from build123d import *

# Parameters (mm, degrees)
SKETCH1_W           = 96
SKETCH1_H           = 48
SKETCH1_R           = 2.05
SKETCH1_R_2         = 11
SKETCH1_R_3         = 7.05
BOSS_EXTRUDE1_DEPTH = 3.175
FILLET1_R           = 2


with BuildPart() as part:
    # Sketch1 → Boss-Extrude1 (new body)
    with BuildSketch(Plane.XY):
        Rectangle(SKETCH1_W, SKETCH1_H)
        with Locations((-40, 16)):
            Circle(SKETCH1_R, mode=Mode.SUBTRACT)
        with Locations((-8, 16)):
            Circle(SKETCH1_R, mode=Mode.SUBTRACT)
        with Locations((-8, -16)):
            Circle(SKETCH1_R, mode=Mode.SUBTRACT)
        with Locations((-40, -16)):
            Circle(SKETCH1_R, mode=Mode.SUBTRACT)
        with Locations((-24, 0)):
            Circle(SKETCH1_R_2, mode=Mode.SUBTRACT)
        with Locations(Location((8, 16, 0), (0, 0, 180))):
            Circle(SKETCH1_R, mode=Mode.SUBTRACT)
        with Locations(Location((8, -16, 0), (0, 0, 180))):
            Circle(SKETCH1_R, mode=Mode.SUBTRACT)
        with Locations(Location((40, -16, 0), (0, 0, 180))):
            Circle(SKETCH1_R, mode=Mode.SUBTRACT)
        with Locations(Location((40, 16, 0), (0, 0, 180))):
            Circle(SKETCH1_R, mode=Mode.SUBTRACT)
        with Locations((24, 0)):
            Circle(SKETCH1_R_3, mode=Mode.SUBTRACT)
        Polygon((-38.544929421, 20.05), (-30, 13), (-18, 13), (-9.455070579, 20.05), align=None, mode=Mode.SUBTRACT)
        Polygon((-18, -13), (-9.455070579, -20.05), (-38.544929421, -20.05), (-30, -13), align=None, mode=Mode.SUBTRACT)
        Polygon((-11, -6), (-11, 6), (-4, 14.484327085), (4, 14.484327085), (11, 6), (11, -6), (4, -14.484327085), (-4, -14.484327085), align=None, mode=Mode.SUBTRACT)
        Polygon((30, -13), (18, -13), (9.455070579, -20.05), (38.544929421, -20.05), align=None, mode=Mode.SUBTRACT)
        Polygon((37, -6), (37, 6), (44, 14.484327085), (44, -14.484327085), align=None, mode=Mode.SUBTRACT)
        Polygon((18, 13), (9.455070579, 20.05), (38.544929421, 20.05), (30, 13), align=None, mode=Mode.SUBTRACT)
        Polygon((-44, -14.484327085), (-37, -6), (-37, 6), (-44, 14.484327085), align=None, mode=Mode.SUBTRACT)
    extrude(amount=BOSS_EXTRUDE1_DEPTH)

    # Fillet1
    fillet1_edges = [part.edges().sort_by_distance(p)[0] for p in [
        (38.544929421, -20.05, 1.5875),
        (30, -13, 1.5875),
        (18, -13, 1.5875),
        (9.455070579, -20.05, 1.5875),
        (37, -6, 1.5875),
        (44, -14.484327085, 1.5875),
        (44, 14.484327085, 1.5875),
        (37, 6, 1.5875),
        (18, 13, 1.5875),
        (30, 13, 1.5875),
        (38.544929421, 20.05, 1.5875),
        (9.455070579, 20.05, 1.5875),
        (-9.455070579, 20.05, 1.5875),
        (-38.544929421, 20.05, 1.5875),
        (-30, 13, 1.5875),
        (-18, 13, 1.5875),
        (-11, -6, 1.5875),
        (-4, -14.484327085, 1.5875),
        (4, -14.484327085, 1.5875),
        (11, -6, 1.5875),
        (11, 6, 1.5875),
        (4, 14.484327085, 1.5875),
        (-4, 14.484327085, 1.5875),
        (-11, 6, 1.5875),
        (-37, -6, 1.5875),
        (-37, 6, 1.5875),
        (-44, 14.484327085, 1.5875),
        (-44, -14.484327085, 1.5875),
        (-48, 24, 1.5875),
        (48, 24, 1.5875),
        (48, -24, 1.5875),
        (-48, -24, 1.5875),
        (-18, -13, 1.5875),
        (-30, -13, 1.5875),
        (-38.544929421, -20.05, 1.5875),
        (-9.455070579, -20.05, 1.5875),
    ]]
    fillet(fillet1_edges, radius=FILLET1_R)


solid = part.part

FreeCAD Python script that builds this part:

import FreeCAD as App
import Part
import Sketcher
Q = App.Units.Quantity


def edges_at(feature, points):
    """Names of the edges that pass closest to the given points."""
    edges = feature.Shape.Edges
    near = lambda p: min(range(len(edges)), key=lambda i: edges[i].distToShape(Part.Vertex(*p))[0])
    return sorted({f"Edge{near(p) + 1}" for p in points})


def add_polygon(sketch, points):
    """Adds a closed chain of lines whose ends are joined by coincident constraints."""
    first, n = sketch.GeometryCount, len(points)
    for a, b in zip(points, points[1:] + points[:1]):
        sketch.addGeometry(Part.LineSegment(App.Vector(*a, 0), App.Vector(*b, 0)), False)
    for i in range(n):
        sketch.addConstraint(Sketcher.Constraint("Coincident", first + i, 2, first + (i + 1) % n, 1))

doc = App.newDocument("Part")
params = doc.addObject("Spreadsheet::Sheet", "Params")
for row, (alias, value) in enumerate([
    ("sketch1_diameter", "22 mm"),
    ("sketch1_diameter2", "4.1 mm"),
    ("sketch1_diameter3", "14.1 mm"),
    ("sketch1_width", "96 mm"),
    ("sketch1_width2", "12 mm"),
    ("pad1_length", "3.175 mm"),
    ("fillet_radius", "2 mm"),
], start=1):
    params.set(f"A{row}", alias)
    params.set(f"B{row}", "=" + value)
    params.setAlias(f"B{row}", alias)

body = doc.addObject("PartDesign::Body", "Body")

# Sketch on XY plane
sketch1 = body.newObject("Sketcher::SketchObject", "Sketch")
sketch1.AttachmentSupport = (doc.getObject("XY_Plane"), [""])
sketch1.MapMode = "FlatFace"
add_polygon(sketch1, [(-48, 24), (-48, -24), (48, -24), (48, 24)])  # lines 0-3
sketch1.addGeometry(Part.Circle(App.Vector(-40, -16, 0), App.Vector(0, 0, 1), 2), False)  # 4
add_polygon(sketch1, [(-30, -13), (-18, -13), (-9.5, -20.1), (-38.5, -20.1)])  # lines 5-8
sketch1.addGeometry(Part.Circle(App.Vector(-8, -16, 0), App.Vector(0, 0, 1), 2), False)  # 9
add_polygon(sketch1, [(-37, -6), (-44, -14.5), (-44, 14.5), (-37, 6)])  # lines 10-13
sketch1.addGeometry(Part.Circle(App.Vector(-24, 0, 0), App.Vector(0, 0, 1), 11), False)  # 14
sketch1.addGeometry(Part.Circle(App.Vector(8, -16, 0), App.Vector(0, 0, 1), 2), False)  # 15
add_polygon(sketch1, [(18, -13), (30, -13), (38.5, -20.1), (9.5, -20.1)])  # lines 16-19
sketch1.addGeometry(Part.Circle(App.Vector(40, -16, 0), App.Vector(0, 0, 1), 2), False)  # 20
add_polygon(sketch1, [(-4, -14.5), (-11, -6), (-11, 6), (-4, 14.5), (4, 14.5), (11, 6), (11, -6), (4, -14.5)])  # lines 21-28
sketch1.addGeometry(Part.Circle(App.Vector(24, 0, 0), App.Vector(0, 0, 1), 7), False)  # 29
add_polygon(sketch1, [(44, -14.5), (37, -6), (37, 6), (44, 14.5)])  # lines 30-33
sketch1.addGeometry(Part.Circle(App.Vector(-40, 16, 0), App.Vector(0, 0, 1), 2), False)  # 34
add_polygon(sketch1, [(-30, 13), (-38.5, 20.1), (-9.5, 20.1), (-18, 13)])  # lines 35-38
sketch1.addGeometry(Part.Circle(App.Vector(-8, 16, 0), App.Vector(0, 0, 1), 2), False)  # 39
sketch1.addGeometry(Part.Circle(App.Vector(8, 16, 0), App.Vector(0, 0, 1), 2), False)  # 40
add_polygon(sketch1, [(30, 13), (18, 13), (9.5, 20.1), (38.5, 20.1)])  # lines 41-44
sketch1.addGeometry(Part.Circle(App.Vector(40, 16, 0), App.Vector(0, 0, 1), 2), False)  # 45
sketch1.addConstraint(Sketcher.Constraint("Vertical", 0))
sketch1.addConstraint(Sketcher.Constraint("Horizontal", 1))
sketch1.addConstraint(Sketcher.Constraint("Vertical", 2))
sketch1.addConstraint(Sketcher.Constraint("Horizontal", 3))
sketch1.addConstraint(Sketcher.Constraint("Horizontal", 5))
sketch1.addConstraint(Sketcher.Constraint("Horizontal", 7))
sketch1.addConstraint(Sketcher.Constraint("Vertical", 11))
sketch1.addConstraint(Sketcher.Constraint("Vertical", 13))
sketch1.addConstraint(Sketcher.Constraint("Horizontal", 16))
sketch1.addConstraint(Sketcher.Constraint("Horizontal", 18))
sketch1.addConstraint(Sketcher.Constraint("Vertical", 22))
sketch1.addConstraint(Sketcher.Constraint("Horizontal", 24))
sketch1.addConstraint(Sketcher.Constraint("Vertical", 26))
sketch1.addConstraint(Sketcher.Constraint("Horizontal", 28))
sketch1.addConstraint(Sketcher.Constraint("Vertical", 31))
sketch1.addConstraint(Sketcher.Constraint("Vertical", 33))
sketch1.addConstraint(Sketcher.Constraint("Horizontal", 36))
sketch1.addConstraint(Sketcher.Constraint("Horizontal", 38))
sketch1.addConstraint(Sketcher.Constraint("Horizontal", 41))
sketch1.addConstraint(Sketcher.Constraint("Horizontal", 43))
sketch1.addConstraint(Sketcher.Constraint("Equal", 4, 9))
sketch1.addConstraint(Sketcher.Constraint("Equal", 9, 15))
sketch1.addConstraint(Sketcher.Constraint("Equal", 15, 20))
sketch1.addConstraint(Sketcher.Constraint("Equal", 20, 34))
sketch1.addConstraint(Sketcher.Constraint("Equal", 34, 39))
sketch1.addConstraint(Sketcher.Constraint("Equal", 39, 40))
sketch1.addConstraint(Sketcher.Constraint("Equal", 40, 45))
sketch1.addConstraint(Sketcher.Constraint("Symmetric", 14, 3, 29, 3, -1, 1))
sketch1.addConstraint(Sketcher.Constraint("Symmetric", 20, 3, 34, 3, -1, 1))
sketch1.addConstraint(Sketcher.Constraint("Symmetric", 15, 3, 39, 3, -1, 1))
sketch1.addConstraint(Sketcher.Constraint("Symmetric", 9, 3, 40, 3, -1, 1))
sketch1.addConstraint(Sketcher.Constraint("Symmetric", 4, 3, 45, 3, -1, 1))
sketch1.addConstraint(Sketcher.Constraint("Symmetric", 0, 2, 2, 2, -1, 1))
sketch1.addConstraint(Sketcher.Constraint("Symmetric", 21, 2, 25, 2, -1, 1))
sketch1.addConstraint(Sketcher.Constraint("Symmetric", 23, 2, 27, 2, -1, 1))
sketch1.addConstraint(Sketcher.Constraint("Symmetric", 12, 2, 30, 2, -1, 1))
sketch1.addConstraint(Sketcher.Constraint("Symmetric", 10, 2, 32, 2, -1, 1))
sketch1.addConstraint(Sketcher.Constraint("Symmetric", 17, 2, 35, 2, -1, 1))
sketch1.addConstraint(Sketcher.Constraint("Symmetric", 19, 2, 37, 2, -1, 1))
sketch1.addConstraint(Sketcher.Constraint("Symmetric", 5, 2, 41, 2, -1, 1))
sketch1.addConstraint(Sketcher.Constraint("Symmetric", 6, 2, 42, 2, -1, 1))
sketch1.addConstraint(Sketcher.Constraint("Symmetric", 9, 3, 15, 3, -2))
sketch1.addConstraint(Sketcher.Constraint("Symmetric", 4, 3, 20, 3, -2))
sketch1.addConstraint(Sketcher.Constraint("Symmetric", 8, 2, 16, 2, -2))
sketch1.addConstraint(Sketcher.Constraint("Symmetric", 7, 2, 17, 2, -2))
sketch1.addConstraint(Sketcher.Constraint("PointOnObject", 14, 3, -1))
sketch1.addConstraint(Sketcher.Constraint("Perpendicular", 6, 10))
sketch1.addConstraint(Sketcher.Constraint("Perpendicular", 8, 12))
sketch1.addConstraint(Sketcher.Constraint("Perpendicular", 10, 17))
sketch1.addConstraint(Sketcher.Constraint("Perpendicular", 12, 19))
sketch1.addConstraint(Sketcher.Constraint("Perpendicular", 19, 21))
sketch1.addConstraint(Sketcher.Constraint("Perpendicular", 17, 23))
sketch1.addConstraint(Sketcher.Constraint("Parallel", 21, 25))
sketch1.addConstraint(Sketcher.Constraint("Parallel", 23, 27))
sketch1.addConstraint(Sketcher.Constraint("Parallel", 25, 30))
sketch1.addConstraint(Sketcher.Constraint("Parallel", 27, 32))
sketch1.addConstraint(Sketcher.Constraint("Perpendicular", 32, 35))
sketch1.addConstraint(Sketcher.Constraint("Perpendicular", 30, 37))
sketch1.addConstraint(Sketcher.Constraint("Parallel", 37, 44))
sketch1.addConstraint(Sketcher.Constraint("Horizontal", 4, 3, 9, 3))
sketch1.addConstraint(Sketcher.Constraint("Horizontal", 13, 2, 21, 2))
sketch1.addConstraint(Sketcher.Constraint("Horizontal", 12, 2, 22, 2))
sketch1.addConstraint(Sketcher.Constraint("Horizontal", 11, 2, 23, 2))
sketch1.addConstraint(Sketcher.Constraint("Horizontal", 22, 2, 25, 2))
sketch1.addConstraint(Sketcher.Constraint("Vertical", 6, 2, 36, 2))
sketch1.addConstraint(Sketcher.Constraint("Vertical", 17, 2, 43, 2))
sketch1.addConstraint(Sketcher.Constraint("Equal", 41, 13))
sketch1.addConstraint(Sketcher.Constraint("Diameter", 14, Q("22 mm")))
sketch1.addConstraint(Sketcher.Constraint("Diameter", 4, Q("4.1 mm")))
sketch1.addConstraint(Sketcher.Constraint("Diameter", 29, Q("14.1 mm")))
sketch1.addConstraint(Sketcher.Constraint("DistanceX", 1, 1, 1, 2, Q("96 mm")))
sketch1.addConstraint(Sketcher.Constraint("DistanceX", 5, 1, 5, 2, Q("12 mm")))
sketch1.addConstraint(Sketcher.Constraint("DistanceX", 24, 1, 24, 2, Q("8 mm")))
sketch1.addConstraint(Sketcher.Constraint("DistanceY", 0, 2, 0, 1, Q("48 mm")))
sketch1.addConstraint(Sketcher.Constraint("DistanceX", 4, 3, -1, 1, Q("40 mm")))
sketch1.addConstraint(Sketcher.Constraint("DistanceY", 4, 3, -1, 1, Q("16 mm")))
sketch1.addConstraint(Sketcher.Constraint("DistanceX", 9, 3, -1, 1, Q("8 mm")))
sketch1.addConstraint(Sketcher.Constraint("DistanceX", 14, 3, -1, 1, Q("24 mm")))
sketch1.addConstraint(Sketcher.Constraint("DistanceX", 5, 2, -1, 1, Q("18 mm")))
sketch1.addConstraint(Sketcher.Constraint("DistanceY", 5, 2, -1, 1, Q("13 mm")))
sketch1.addConstraint(Sketcher.Constraint("DistanceX", 10, 2, -1, 1, Q("44 mm")))
sketch1.addConstraint(Sketcher.Constraint("DistanceX", 12, 2, -1, 1, Q("37 mm")))
sketch1.addConstraint(Sketcher.Constraint("DistanceY", 6, 2, -1, 1, Q("20.05 mm")))
sketch1.addConstraint(Sketcher.Constraint("DistanceX", 7, 2, 7, 1, Q("29.089859 mm")))
sketch1.setExpression("Constraints[103]", "Params.sketch1_diameter")
sketch1.setExpression("Constraints[104]", "Params.sketch1_diameter2")
sketch1.setExpression("Constraints[105]", "Params.sketch1_diameter3")
sketch1.setExpression("Constraints[106]", "Params.sketch1_width")
sketch1.setExpression("Constraints[107]", "Params.sketch1_width2")
pad1 = body.newObject("PartDesign::Pad", "Pad")
pad1.Profile = sketch1
pad1.setExpression("Length", "Params.pad1_length")
doc.recompute()

fillet = body.newObject("PartDesign::Fillet", "Fillet")
fillet.Base = (pad1, edges_at(pad1, [
    (38.545, -20.05, 1.587),
    (30, -13, 1.587),
    (18, -13, 1.587),
    (9.455, -20.05, 1.587),
    (37, -6, 1.587),
    (44, -14.484, 1.587),
    (44, 14.484, 1.587),
    (37, 6, 1.587),
    (18, 13, 1.587),
    (30, 13, 1.587),
    (38.545, 20.05, 1.587),
    (9.455, 20.05, 1.587),
    (-9.455, 20.05, 1.587),
    (-38.545, 20.05, 1.587),
    (-30, 13, 1.587),
    (-18, 13, 1.587),
    (-11, -6, 1.587),
    (-4, -14.484, 1.587),
    (4, -14.484, 1.587),
    (11, -6, 1.587),
    (11, 6, 1.587),
    (4, 14.484, 1.587),
    (-4, 14.484, 1.587),
    (-11, 6, 1.587),
    (-37, -6, 1.587),
    (-37, 6, 1.587),
    (-44, 14.484, 1.587),
    (-44, -14.484, 1.587),
    (-48, 24, 1.587),
    (48, 24, 1.587),
    (48, -24, 1.587),
    (-48, -24, 1.587),
    (-18, -13, 1.587),
    (-30, -13, 1.587),
    (-38.545, -20.05, 1.587),
    (-9.455, -20.05, 1.587),
]))
fillet.setExpression("Radius", "Params.fillet_radius")

doc.recompute()
